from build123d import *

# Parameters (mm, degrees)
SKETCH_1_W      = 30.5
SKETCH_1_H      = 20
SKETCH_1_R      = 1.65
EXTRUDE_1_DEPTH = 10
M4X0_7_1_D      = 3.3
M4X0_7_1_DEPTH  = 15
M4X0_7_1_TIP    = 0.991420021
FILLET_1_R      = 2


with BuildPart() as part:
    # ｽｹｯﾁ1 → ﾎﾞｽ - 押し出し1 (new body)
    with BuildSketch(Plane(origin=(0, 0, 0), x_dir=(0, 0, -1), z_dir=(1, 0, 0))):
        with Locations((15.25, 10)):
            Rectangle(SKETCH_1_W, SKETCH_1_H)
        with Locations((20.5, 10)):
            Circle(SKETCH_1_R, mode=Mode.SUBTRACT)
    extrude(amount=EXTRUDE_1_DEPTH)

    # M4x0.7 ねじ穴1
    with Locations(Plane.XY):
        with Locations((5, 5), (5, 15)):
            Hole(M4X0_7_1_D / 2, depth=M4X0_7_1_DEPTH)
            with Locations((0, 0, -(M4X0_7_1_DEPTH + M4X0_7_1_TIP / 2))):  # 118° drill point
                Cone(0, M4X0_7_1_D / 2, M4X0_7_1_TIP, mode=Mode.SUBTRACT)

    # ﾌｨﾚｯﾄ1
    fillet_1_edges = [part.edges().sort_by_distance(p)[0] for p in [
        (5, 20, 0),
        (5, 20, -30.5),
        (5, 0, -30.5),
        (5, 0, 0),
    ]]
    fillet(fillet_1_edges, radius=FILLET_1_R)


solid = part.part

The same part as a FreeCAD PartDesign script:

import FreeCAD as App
import Part
import Sketcher
from FreeCAD import Vector
Q = App.Units.Quantity


def edges_at(feature, points):
    """Names of the edges that pass closest to the given points."""
    edges = feature.Shape.Edges
    near = lambda p: min(range(len(edges)), key=lambda i: edges[i].distToShape(Part.Vertex(*p))[0])
    return sorted({f"Edge{near(p) + 1}" for p in points})

doc = App.newDocument("Part")
params = doc.addObject("Spreadsheet::Sheet", "Params")
for row, (alias, value) in enumerate([
    ("sketch1_diameter", "3.3 mm"),
    ("sketch1_width", "20 mm"),
    ("sketch1_height", "30.5 mm"),
    ("pad1_length", "10 mm"),
    ("sketch2_diameter", "3.3 mm"),
    ("hole_diameter", "3.3 mm"),
    ("hole_depth", "15 mm"),
    ("fillet_radius", "2 mm"),
], start=1):
    params.set(f"A{row}", alias)
    params.set(f"B{row}", "=" + value)
    params.setAlias(f"B{row}", alias)

body = doc.addObject("PartDesign::Body", "Body")

sketch1 = body.newObject("Sketcher::SketchObject", "Sketch")
sketch1.AttachmentSupport = (doc.getObject("YZ_Plane"), [""])
sketch1.MapMode = "FlatFace"
sketch1.addGeometry(Part.LineSegment(Vector(20, 0, 0), Vector(0, 0, 0)), False)
sketch1.addGeometry(Part.LineSegment(Vector(0, 0, 0), Vector(0, -30.5, 0)), False)
sketch1.addGeometry(Part.LineSegment(Vector(0, -30.5, 0), Vector(20, -30.5, 0)), False)
sketch1.addGeometry(Part.LineSegment(Vector(20, -30.5, 0), Vector(20, 0, 0)), False)
sketch1.addGeometry(Part.Circle(Vector(10, -20.5, 0), Vector(0, 0, 1), 1.65), False)
sketch1.addConstraint(Sketcher.Constraint("Coincident", 0, 2, 1, 1))
sketch1.addConstraint(Sketcher.Constraint("Coincident", 1, 2, 2, 1))
sketch1.addConstraint(Sketcher.Constraint("Coincident", 2, 2, 3, 1))
sketch1.addConstraint(Sketcher.Constraint("Coincident", 3, 2, 0, 1))
sketch1.addConstraint(Sketcher.Constraint("Horizontal", 0))
sketch1.addConstraint(Sketcher.Constraint("Vertical", 1))
sketch1.addConstraint(Sketcher.Constraint("Horizontal", 2))
sketch1.addConstraint(Sketcher.Constraint("Vertical", 3))
sketch1.addConstraint(Sketcher.Constraint("Coincident", 0, 2, -1, 1))
sketch1.addConstraint(Sketcher.Constraint("Diameter", 4, Q("3.3 mm")))
sketch1.addConstraint(Sketcher.Constraint("DistanceX", 0, 2, 0, 1, Q("20 mm")))
sketch1.addConstraint(Sketcher.Constraint("DistanceY", 1, 2, 1, 1, Q("30.5 mm")))
sketch1.addConstraint(Sketcher.Constraint("DistanceX", -1, 1, 4, 3, Q("10 mm")))
sketch1.addConstraint(Sketcher.Constraint("DistanceY", 1, 2, 4, 3, Q("10 mm")))
sketch1.setExpression("Constraints[9]", "Params.sketch1_diameter")
sketch1.setExpression("Constraints[10]", "Params.sketch1_width")
sketch1.setExpression("Constraints[11]", "Params.sketch1_height")
pad1 = body.newObject("PartDesign::Pad", "Pad")
pad1.Profile = sketch1
pad1.setExpression("Length", "Params.pad1_length")

sketch2 = body.newObject("Sketcher::SketchObject", "Sketch001")
sketch2.AttachmentSupport = (doc.getObject("XY_Plane"), [""])
sketch2.MapMode = "FlatFace"
sketch2.addGeometry(Part.Circle(Vector(5, 5, 0), Vector(0, 0, 1), 1.65), False)
sketch2.addGeometry(Part.Circle(Vector(5, 15, 0), Vector(0, 0, 1), 1.65), False)
sketch2.addConstraint(Sketcher.Constraint("Equal", 0, 1))
sketch2.addConstraint(Sketcher.Constraint("Vertical", 0, 3, 1, 3))
sketch2.addConstraint(Sketcher.Constraint("Diameter", 0, Q("3.3 mm")))
sketch2.addConstraint(Sketcher.Constraint("DistanceX", -1, 1, 0, 3, Q("5 mm")))
sketch2.addConstraint(Sketcher.Constraint("DistanceY", -1, 1, 0, 3, Q("5 mm")))
sketch2.addConstraint(Sketcher.Constraint("DistanceY", -1, 1, 1, 3, Q("15 mm")))
sketch2.setExpression("Constraints[2]", "Params.sketch2_diameter")
doc.recompute()
hole = body.newObject("PartDesign::Hole", "Hole")
hole.Profile = sketch2
hole.ThreadType = "None"
hole.setExpression("Diameter", "Params.hole_diameter")
hole.DepthType = "Dimension"
hole.setExpression("Depth", "Params.hole_depth")
hole.DrillPoint = "Angled"
hole.DrillPointAngle = 118
doc.recompute()

fillet = body.newObject("PartDesign::Fillet", "Fillet")
fillet.Base = (hole, edges_at(hole, [
    (5, 20, 0),
    (5, 20, -30.5),
    (5, 0, -30.5),
    (5, 0, 0),
]))
fillet.setExpression("Radius", "Params.fillet_radius")

doc.recompute()
